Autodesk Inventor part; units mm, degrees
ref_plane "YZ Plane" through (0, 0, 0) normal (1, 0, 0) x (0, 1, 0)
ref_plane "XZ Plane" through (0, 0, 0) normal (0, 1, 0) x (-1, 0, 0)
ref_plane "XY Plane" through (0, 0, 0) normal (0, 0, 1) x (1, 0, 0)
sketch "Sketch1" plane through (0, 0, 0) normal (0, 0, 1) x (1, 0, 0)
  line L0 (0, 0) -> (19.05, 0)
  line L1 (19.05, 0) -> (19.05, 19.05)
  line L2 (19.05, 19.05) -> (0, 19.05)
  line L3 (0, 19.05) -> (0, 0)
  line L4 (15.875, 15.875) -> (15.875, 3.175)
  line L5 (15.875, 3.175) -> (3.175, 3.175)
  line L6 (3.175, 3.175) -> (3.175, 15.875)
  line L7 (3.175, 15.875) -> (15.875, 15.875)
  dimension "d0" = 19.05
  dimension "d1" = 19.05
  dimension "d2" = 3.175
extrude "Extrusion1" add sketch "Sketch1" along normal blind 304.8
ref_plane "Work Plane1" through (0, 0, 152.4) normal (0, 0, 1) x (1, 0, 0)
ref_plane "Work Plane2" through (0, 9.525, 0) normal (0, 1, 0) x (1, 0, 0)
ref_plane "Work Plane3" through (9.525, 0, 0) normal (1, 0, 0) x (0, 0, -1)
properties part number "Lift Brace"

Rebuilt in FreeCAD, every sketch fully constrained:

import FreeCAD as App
import Part
import Sketcher

V = App.Vector
Q = App.Units.Quantity


def add_polygon(sketch, points):
    """Adds a closed chain of lines whose ends are joined by coincident constraints."""
    first, n = sketch.GeometryCount, len(points)
    for a, b in zip(points, points[1:] + points[:1]):
        sketch.addGeometry(Part.LineSegment(App.Vector(*a, 0), App.Vector(*b, 0)), False)
    for i in range(n):
        sketch.addConstraint(Sketcher.Constraint("Coincident", first + i, 2, first + (i + 1) % n, 1))

doc = App.newDocument("Part")
body = doc.addObject("PartDesign::Body", "Body")

# Sketch on XY plane
sketch1 = body.newObject("Sketcher::SketchObject", "Sketch")
sketch1.AttachmentSupport = (doc.getObject("XY_Plane"), [""])
sketch1.MapMode = "FlatFace"
add_polygon(sketch1, [(0, 19), (0, 0), (19, 0), (19, 19)])  # lines 0-3
add_polygon(sketch1, [(3, 16), (16, 16), (16, 3), (3, 3)])  # lines 4-7
sketch1.addConstraint([
    Sketcher.Constraint("Vertical", 0),
    Sketcher.Constraint("Horizontal", 1),
    Sketcher.Constraint("Vertical", 2),
    Sketcher.Constraint("Horizontal", 3),
    Sketcher.Constraint("Horizontal", 4),
    Sketcher.Constraint("Vertical", 5),
    Sketcher.Constraint("Horizontal", 6),
    Sketcher.Constraint("Vertical", 7),
    Sketcher.Constraint("Coincident", 0, 2, -1, 1),
    Sketcher.Constraint("Equal", 3, 0),
    Sketcher.Constraint("Equal", 6, 5),
    Sketcher.Constraint("DistanceX", 1, 1, 1, 2, Q("0.75 in")),
    Sketcher.Constraint("DistanceX", 4, 1, 4, 2, Q("0.5 in")),
    Sketcher.Constraint("DistanceY", -1, 1, 5, 2, Q("0.125 in")),
    Sketcher.Constraint("DistanceX", -1, 1, 6, 2, Q("0.125 in")),
])
pad1 = body.newObject("PartDesign::Pad", "Pad")
pad1.Profile = sketch1
pad1.Length = Q("12 in")

doc.recompute()
